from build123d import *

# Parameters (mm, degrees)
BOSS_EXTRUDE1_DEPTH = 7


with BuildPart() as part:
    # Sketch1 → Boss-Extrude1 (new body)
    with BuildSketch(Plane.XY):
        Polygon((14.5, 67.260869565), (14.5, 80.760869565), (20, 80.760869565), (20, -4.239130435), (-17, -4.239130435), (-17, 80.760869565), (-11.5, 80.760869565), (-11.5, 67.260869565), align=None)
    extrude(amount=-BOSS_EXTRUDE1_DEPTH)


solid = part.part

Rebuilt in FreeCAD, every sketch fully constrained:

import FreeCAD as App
import Part
import Sketcher

V = App.Vector


def add_polygon(sketch, points):
    """Adds a closed chain of lines whose ends are joined by coincident constraints."""
    first, n = sketch.GeometryCount, len(points)
    for a, b in zip(points, points[1:] + points[:1]):
        sketch.addGeometry(Part.LineSegment(App.Vector(*a, 0), App.Vector(*b, 0)), False)
    for i in range(n):
        sketch.addConstraint(Sketcher.Constraint("Coincident", first + i, 2, first + (i + 1) % n, 1))

doc = App.newDocument("Part")
body = doc.addObject("PartDesign::Body", "Body")

sketch1 = body.newObject("Sketcher::SketchObject", "Sketch")
sketch1.AttachmentSupport = (doc.getObject("XY_Plane"), [""])
sketch1.MapMode = "FlatFace"
add_polygon(sketch1, [(14, 81), (14, 67), (-12, 67), (-12, 81), (-17, 81), (-17, -4), (20, -4), (20, 81)])
sketch1.addConstraint([
    Sketcher.Constraint("Vertical", 0),
    Sketcher.Constraint("Horizontal", 1),
    Sketcher.Constraint("Vertical", 2),
    Sketcher.Constraint("Horizontal", 3),
    Sketcher.Constraint("Vertical", 4),
    Sketcher.Constraint("Horizontal", 5),
    Sketcher.Constraint("Vertical", 6),
    Sketcher.Constraint("Horizontal", 7),
    Sketcher.Constraint("Horizontal", 3, 2, 6, 2),
    Sketcher.Constraint("Equal", 3, 7),
    Sketcher.Constraint("DistanceX", 1, 2, 1, 1, 26.0),
    Sketcher.Constraint("DistanceX", 5, 1, 5, 2, 37.0),
    Sketcher.Constraint("DistanceY", 4, 2, 4, 1, 85.0),
    Sketcher.Constraint("DistanceY", 0, 2, 0, 1, 13.5),
    Sketcher.Constraint("DistanceX", 3, 2, -1, 1, 17.0),
    Sketcher.Constraint("DistanceY", -1, 1, 0, 2, 67.26087),
])
pad1 = body.newObject("PartDesign::Pad", "Pad")
pad1.Profile = sketch1
pad1.Length = 7
pad1.Reversed = True

doc.recompute()
